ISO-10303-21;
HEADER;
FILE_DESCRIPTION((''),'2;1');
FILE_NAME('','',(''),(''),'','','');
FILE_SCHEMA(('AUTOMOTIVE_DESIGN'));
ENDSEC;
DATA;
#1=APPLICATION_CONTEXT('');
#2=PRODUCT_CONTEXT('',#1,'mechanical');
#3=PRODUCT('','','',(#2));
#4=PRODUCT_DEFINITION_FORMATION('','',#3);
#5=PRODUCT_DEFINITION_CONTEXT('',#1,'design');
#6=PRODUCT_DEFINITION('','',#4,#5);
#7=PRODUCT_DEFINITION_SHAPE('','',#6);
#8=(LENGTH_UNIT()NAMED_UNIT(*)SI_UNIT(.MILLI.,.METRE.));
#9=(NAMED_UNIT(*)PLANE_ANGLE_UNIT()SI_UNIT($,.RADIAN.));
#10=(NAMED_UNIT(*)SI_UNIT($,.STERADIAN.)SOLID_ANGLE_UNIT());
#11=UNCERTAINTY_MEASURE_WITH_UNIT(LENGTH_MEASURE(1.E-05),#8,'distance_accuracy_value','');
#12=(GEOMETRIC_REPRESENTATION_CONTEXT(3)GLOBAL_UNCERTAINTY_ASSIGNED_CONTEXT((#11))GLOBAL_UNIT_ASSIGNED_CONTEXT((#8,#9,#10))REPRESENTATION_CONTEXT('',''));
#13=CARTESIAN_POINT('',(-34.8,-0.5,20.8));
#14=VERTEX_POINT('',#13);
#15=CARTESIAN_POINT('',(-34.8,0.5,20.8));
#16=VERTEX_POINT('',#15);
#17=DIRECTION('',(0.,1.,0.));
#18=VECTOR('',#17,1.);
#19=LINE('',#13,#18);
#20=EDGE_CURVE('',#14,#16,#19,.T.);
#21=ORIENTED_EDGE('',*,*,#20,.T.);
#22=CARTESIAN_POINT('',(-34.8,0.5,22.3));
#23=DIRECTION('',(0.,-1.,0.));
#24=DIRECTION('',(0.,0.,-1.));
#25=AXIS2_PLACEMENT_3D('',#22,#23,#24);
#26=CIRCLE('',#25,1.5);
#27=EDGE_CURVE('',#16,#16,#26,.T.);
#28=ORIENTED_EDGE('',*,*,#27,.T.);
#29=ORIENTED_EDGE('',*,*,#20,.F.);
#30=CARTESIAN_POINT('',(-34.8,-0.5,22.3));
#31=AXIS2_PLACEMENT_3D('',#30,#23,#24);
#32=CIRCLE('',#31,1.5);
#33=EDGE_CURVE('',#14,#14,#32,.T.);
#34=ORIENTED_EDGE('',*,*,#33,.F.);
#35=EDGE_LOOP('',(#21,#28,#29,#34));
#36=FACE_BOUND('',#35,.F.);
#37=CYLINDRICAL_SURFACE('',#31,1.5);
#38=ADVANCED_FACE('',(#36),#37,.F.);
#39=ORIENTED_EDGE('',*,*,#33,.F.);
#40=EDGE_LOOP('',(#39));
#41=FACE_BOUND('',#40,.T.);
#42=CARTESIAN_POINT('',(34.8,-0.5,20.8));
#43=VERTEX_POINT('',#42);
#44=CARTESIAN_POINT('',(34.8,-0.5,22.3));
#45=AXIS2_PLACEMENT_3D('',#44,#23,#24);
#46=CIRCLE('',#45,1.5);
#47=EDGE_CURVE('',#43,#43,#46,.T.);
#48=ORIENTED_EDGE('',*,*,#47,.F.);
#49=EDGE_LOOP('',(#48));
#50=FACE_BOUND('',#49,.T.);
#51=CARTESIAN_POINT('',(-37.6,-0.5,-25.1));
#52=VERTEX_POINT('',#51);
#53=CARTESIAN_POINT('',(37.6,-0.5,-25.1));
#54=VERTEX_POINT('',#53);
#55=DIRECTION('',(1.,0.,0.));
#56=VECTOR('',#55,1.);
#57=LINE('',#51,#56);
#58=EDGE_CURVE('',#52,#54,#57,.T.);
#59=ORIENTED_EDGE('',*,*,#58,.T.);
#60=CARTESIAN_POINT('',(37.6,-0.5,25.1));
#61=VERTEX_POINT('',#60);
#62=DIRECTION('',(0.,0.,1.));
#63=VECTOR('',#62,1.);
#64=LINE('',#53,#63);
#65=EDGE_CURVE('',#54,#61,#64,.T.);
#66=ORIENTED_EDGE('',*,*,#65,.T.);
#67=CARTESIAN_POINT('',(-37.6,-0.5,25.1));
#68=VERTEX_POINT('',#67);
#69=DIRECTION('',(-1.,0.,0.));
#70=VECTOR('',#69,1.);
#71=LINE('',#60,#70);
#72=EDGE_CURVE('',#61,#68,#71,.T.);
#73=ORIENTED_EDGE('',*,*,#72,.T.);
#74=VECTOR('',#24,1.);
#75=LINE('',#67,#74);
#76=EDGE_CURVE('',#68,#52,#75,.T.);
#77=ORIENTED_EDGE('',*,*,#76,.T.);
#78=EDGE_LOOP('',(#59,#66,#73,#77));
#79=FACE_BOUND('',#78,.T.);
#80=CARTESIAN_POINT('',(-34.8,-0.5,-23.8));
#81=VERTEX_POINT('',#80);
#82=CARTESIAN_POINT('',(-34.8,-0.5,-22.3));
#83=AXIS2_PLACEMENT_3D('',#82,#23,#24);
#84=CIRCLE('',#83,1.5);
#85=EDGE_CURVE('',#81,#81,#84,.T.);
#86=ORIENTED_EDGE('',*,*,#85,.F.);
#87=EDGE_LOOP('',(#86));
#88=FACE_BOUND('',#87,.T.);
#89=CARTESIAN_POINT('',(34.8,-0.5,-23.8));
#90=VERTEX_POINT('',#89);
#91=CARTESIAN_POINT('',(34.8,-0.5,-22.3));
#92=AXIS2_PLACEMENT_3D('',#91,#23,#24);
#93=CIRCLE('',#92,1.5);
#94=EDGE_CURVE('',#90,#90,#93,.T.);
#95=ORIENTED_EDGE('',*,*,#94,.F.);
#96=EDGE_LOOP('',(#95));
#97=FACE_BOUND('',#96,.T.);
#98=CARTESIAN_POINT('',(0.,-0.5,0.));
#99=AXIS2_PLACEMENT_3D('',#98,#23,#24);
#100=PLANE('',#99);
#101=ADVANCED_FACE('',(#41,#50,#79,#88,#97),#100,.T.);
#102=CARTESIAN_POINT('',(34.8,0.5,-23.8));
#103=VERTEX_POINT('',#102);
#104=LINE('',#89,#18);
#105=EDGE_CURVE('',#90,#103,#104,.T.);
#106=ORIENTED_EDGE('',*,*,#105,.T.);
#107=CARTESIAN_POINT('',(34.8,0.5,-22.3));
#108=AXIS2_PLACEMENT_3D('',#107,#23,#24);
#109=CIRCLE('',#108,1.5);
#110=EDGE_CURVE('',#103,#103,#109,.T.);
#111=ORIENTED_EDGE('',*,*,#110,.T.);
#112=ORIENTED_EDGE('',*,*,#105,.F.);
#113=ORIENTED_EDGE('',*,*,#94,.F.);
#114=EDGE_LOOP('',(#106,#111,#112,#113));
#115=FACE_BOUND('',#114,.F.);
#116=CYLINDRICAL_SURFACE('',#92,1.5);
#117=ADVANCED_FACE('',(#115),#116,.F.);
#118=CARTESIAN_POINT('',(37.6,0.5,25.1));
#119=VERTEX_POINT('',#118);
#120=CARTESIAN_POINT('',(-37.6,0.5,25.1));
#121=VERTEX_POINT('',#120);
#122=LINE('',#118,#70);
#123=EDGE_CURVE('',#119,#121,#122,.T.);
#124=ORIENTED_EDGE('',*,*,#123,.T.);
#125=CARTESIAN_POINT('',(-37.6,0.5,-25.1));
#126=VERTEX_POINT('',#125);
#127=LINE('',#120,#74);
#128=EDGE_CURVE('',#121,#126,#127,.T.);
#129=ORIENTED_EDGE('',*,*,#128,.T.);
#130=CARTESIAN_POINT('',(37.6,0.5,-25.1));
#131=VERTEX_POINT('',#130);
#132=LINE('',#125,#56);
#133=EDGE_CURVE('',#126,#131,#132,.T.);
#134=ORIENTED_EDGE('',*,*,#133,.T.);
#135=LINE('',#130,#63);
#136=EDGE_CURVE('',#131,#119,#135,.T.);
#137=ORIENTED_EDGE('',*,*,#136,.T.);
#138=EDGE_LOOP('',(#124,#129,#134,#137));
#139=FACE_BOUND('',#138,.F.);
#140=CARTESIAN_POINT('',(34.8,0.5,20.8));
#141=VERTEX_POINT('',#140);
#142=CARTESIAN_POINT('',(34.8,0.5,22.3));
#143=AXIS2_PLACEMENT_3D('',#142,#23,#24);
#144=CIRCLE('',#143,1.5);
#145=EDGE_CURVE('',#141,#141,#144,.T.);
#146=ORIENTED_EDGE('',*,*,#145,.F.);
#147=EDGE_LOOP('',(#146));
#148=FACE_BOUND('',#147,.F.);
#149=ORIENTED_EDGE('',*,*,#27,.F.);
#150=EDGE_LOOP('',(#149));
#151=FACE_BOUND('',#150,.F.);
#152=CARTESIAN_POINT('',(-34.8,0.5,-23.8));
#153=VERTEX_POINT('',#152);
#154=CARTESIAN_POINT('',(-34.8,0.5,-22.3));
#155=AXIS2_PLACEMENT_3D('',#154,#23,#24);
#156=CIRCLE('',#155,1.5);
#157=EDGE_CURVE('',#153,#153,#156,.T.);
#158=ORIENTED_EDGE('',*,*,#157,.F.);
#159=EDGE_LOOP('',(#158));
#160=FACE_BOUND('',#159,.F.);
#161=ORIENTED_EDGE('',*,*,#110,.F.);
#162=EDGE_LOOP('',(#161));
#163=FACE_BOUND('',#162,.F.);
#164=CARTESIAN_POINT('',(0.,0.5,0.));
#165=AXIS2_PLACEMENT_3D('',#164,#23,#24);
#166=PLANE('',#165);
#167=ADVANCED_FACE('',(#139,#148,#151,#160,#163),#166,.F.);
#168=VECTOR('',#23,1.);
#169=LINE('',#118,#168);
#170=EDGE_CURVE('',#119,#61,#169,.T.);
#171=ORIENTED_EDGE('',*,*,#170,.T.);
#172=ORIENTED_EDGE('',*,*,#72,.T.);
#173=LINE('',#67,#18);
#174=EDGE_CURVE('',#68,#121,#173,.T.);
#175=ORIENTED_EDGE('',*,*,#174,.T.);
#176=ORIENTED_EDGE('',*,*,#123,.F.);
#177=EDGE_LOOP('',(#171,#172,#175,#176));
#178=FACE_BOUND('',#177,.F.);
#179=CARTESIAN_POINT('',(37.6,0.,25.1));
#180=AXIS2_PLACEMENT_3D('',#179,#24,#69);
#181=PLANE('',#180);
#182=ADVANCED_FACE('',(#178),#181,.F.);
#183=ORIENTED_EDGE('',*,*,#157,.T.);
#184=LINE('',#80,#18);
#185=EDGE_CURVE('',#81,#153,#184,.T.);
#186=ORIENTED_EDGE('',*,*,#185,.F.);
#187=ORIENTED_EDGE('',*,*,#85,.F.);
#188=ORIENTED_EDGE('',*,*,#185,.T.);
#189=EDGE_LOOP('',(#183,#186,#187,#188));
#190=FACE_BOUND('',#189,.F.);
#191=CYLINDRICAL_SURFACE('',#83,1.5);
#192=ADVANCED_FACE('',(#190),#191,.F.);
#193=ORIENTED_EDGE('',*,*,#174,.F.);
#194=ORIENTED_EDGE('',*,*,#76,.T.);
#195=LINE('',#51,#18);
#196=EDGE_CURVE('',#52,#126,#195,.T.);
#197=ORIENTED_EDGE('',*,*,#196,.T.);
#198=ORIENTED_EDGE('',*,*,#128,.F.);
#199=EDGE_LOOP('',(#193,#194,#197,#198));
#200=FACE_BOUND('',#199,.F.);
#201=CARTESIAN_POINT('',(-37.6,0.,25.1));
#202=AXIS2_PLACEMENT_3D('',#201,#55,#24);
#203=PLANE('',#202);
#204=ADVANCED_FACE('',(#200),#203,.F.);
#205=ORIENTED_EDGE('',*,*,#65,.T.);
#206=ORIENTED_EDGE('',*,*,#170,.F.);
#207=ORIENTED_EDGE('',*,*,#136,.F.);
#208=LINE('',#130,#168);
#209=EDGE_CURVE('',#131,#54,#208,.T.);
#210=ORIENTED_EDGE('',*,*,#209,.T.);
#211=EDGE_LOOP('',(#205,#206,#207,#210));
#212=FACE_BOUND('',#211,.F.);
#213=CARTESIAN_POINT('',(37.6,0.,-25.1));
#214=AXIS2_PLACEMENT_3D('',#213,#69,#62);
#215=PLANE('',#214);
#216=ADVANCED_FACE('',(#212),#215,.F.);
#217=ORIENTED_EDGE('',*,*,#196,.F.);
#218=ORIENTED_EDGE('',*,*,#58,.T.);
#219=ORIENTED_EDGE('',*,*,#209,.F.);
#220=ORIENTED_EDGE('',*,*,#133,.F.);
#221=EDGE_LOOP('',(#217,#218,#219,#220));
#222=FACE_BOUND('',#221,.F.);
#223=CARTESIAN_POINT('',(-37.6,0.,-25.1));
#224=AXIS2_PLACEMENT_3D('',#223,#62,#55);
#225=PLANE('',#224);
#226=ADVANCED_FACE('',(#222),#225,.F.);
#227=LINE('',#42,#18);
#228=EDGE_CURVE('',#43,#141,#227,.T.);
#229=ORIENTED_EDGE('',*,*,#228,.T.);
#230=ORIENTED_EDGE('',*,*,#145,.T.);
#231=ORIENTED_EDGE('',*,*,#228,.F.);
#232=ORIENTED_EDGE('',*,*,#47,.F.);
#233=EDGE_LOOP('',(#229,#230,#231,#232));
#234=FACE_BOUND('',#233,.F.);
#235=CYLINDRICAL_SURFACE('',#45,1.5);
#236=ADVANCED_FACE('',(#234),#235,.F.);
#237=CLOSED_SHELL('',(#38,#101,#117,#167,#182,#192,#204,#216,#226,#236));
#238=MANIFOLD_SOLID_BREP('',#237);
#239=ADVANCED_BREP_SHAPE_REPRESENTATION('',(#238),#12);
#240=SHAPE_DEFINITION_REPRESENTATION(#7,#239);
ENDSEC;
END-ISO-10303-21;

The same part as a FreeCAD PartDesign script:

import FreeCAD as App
import Part
import Sketcher

V = App.Vector
Q = App.Units.Quantity


def add_polygon(sketch, points):
    """Adds a closed chain of lines whose ends are joined by coincident constraints."""
    first, n = sketch.GeometryCount, len(points)
    for a, b in zip(points, points[1:] + points[:1]):
        sketch.addGeometry(Part.LineSegment(App.Vector(*a, 0), App.Vector(*b, 0)), False)
    for i in range(n):
        sketch.addConstraint(Sketcher.Constraint("Coincident", first + i, 2, first + (i + 1) % n, 1))

doc = App.newDocument("Part")
body = doc.addObject("PartDesign::Body", "Body")

sketch1 = doc.addObject("Sketcher::SketchObject", "Sketch")
body.addObject(sketch1)
sketch1.AttachmentSupport = (doc.XZ_Plane, [""])
sketch1.MapMode = "FlatFace"
add_polygon(sketch1, [(-38, 25), (-38, -25), (38, -25), (38, 25)])
sketch1.addConstraint(Sketcher.Constraint("Vertical", 0))
sketch1.addConstraint(Sketcher.Constraint("Horizontal", 1))
sketch1.addConstraint(Sketcher.Constraint("Vertical", 2))
sketch1.addConstraint(Sketcher.Constraint("Horizontal", 3))
sketch1.addConstraint(Sketcher.Constraint("Symmetric", 0, 2, 2, 2, -1, 1))
sketch1.addConstraint(Sketcher.Constraint("DistanceX", 1, 1, 1, 2, Q("75.2 mm")))
sketch1.addConstraint(Sketcher.Constraint("DistanceY", 0, 2, 0, 1, Q("50.2 mm")))
pad1 = doc.addObject("PartDesign::Pad", "Pad")
body.addObject(pad1)
pad1.Profile = sketch1
pad1.Length = 1
pad1.Midplane = True

sketch2 = doc.addObject("Sketcher::SketchObject", "Sketch001")
body.addObject(sketch2)
sketch2.AttachmentSupport = (doc.XZ_Plane, [""])
sketch2.MapMode = "FlatFace"
sketch2.AttachmentOffset = App.Placement(V(0, 0, 0.5), App.Rotation())
sketch2.addGeometry(Part.Circle(V(34.8, 22.3, 0), V(0, 0, 1), 1.5), False)
sketch2.addGeometry(Part.Circle(V(34.8, -22.3, 0), V(0, 0, 1), 1.5), False)
sketch2.addGeometry(Part.Circle(V(-34.8, 22.3, 0), V(0, 0, 1), 1.5), False)
sketch2.addGeometry(Part.Circle(V(-34.8, -22.3, 0), V(0, 0, 1), 1.5), False)
sketch2.addConstraint(Sketcher.Constraint("Equal", 0, 1))
sketch2.addConstraint(Sketcher.Constraint("Equal", 1, 2))
sketch2.addConstraint(Sketcher.Constraint("Equal", 2, 3))
sketch2.addConstraint(Sketcher.Constraint("Symmetric", 1, 3, 2, 3, -1, 1))
sketch2.addConstraint(Sketcher.Constraint("Symmetric", 0, 3, 3, 3, -1, 1))
sketch2.addConstraint(Sketcher.Constraint("Symmetric", 0, 3, 2, 3, -2))
sketch2.addConstraint(Sketcher.Constraint("Diameter", 0, Q("3 mm")))
sketch2.addConstraint(Sketcher.Constraint("DistanceX", -1, 1, 0, 3, Q("34.8 mm")))
sketch2.addConstraint(Sketcher.Constraint("DistanceY", -1, 1, 0, 3, Q("22.3 mm")))
pocket1 = doc.addObject("PartDesign::Pocket", "Pocket")
body.addObject(pocket1)
pocket1.Profile = sketch2
pocket1.Length = 1

doc.recompute()
